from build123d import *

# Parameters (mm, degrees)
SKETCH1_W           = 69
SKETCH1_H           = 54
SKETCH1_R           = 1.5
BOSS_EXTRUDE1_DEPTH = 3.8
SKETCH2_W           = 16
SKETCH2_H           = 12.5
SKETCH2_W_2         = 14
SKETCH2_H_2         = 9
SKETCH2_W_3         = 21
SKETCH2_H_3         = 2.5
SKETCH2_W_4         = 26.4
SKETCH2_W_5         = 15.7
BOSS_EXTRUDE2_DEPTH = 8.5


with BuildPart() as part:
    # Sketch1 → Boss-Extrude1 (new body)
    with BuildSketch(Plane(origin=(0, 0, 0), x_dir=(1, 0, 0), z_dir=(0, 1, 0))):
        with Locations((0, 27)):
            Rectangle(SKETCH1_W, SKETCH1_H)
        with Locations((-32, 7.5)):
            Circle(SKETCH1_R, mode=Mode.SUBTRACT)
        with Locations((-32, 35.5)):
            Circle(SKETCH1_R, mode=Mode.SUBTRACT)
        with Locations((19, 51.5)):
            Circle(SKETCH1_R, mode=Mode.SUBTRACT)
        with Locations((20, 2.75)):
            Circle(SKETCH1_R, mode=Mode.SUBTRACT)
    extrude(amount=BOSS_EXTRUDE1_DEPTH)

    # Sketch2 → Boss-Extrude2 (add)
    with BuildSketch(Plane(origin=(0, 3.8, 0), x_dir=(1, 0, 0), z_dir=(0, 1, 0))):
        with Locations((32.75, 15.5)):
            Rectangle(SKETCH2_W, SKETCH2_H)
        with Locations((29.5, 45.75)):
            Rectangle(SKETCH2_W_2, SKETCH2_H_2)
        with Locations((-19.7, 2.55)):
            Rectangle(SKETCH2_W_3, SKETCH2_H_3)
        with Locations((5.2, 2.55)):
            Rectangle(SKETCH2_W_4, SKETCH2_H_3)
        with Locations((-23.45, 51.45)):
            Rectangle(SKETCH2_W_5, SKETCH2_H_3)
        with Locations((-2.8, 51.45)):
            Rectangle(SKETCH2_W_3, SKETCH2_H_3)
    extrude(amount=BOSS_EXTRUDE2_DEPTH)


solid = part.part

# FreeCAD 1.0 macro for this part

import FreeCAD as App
import Part
import Sketcher

V = App.Vector
Q = App.Units.Quantity

doc = App.newDocument("Part")
params = doc.addObject("Spreadsheet::Sheet", "Params")
for row, (alias, value) in enumerate([
    ("sketch1_diameter", "3 mm"),
    ("sketch1_width", "69 mm"),
    ("sketch1_height", "54 mm"),
    ("pad1_length", "3.8 mm"),
    ("sketch2_width", "16 mm"),
    ("sketch2_width2", "14 mm"),
    ("sketch2_width3", "21 mm"),
    ("sketch2_height", "9 mm"),
    ("sketch2_width4", "26.4 mm"),
    ("pad2_length", "8.5 mm"),
], start=1):
    params.set(f"A{row}", alias)
    params.set(f"B{row}", "=" + value)
    params.setAlias(f"B{row}", alias)

body = doc.addObject("PartDesign::Body", "Body")

sketch1 = body.newObject("Sketcher::SketchObject", "Sketch")
sketch1.AttachmentSupport = (doc.getObject("XZ_Plane"), [""])
sketch1.MapMode = "FlatFace"
sketch1.addGeometry([
    Part.LineSegment(V(-34.5, -54, 0), V(-34.5, 0, 0)),
    Part.LineSegment(V(-34.5, 0, 0), V(34.5, 0, 0)),
    Part.LineSegment(V(34.5, 0, 0), V(34.5, -54, 0)),
    Part.LineSegment(V(34.5, -54, 0), V(-34.5, -54, 0)),
    Part.Circle(V(-32, -7.5, 0), V(0, 0, 1), 1.5),
    Part.Circle(V(20, -2.8, 0), V(0, 0, 1), 1.5),
    Part.Circle(V(-32, -35.5, 0), V(0, 0, 1), 1.5),
    Part.Circle(V(19, -51.5, 0), V(0, 0, 1), 1.5),
], False)
sketch1.addConstraint([
    Sketcher.Constraint("Coincident", 0, 2, 1, 1),
    Sketcher.Constraint("Coincident", 1, 2, 2, 1),
    Sketcher.Constraint("Coincident", 2, 2, 3, 1),
    Sketcher.Constraint("Coincident", 3, 2, 0, 1),
    Sketcher.Constraint("Vertical", 0),
    Sketcher.Constraint("Horizontal", 1),
    Sketcher.Constraint("Vertical", 2),
    Sketcher.Constraint("Horizontal", 3),
    Sketcher.Constraint("Equal", 4, 5),
    Sketcher.Constraint("Equal", 5, 6),
    Sketcher.Constraint("Equal", 6, 7),
    Sketcher.Constraint("Symmetric", 0, 2, 1, 2, -1, 1),
    Sketcher.Constraint("Vertical", 4, 3, 6, 3),
    Sketcher.Constraint("Diameter", 4, Q("3 mm")),
    Sketcher.Constraint("DistanceX", 1, 1, 1, 2, Q("69 mm")),
    Sketcher.Constraint("DistanceY", 0, 1, 0, 2, Q("54 mm")),
    Sketcher.Constraint("DistanceX", 4, 3, -1, 1, Q("32 mm")),
    Sketcher.Constraint("DistanceX", -1, 1, 5, 3, Q("20 mm")),
    Sketcher.Constraint("DistanceX", -1, 1, 7, 3, Q("19 mm")),
    Sketcher.Constraint("DistanceY", 6, 3, 4, 3, Q("28 mm")),
    Sketcher.Constraint("DistanceY", 7, 3, 6, 3, Q("16 mm")),
    Sketcher.Constraint("DistanceY", 4, 3, -1, 1, Q("7.5 mm")),
    Sketcher.Constraint("DistanceY", 5, 3, -1, 1, Q("2.75 mm")),
])
sketch1.setExpression("Constraints[13]", "Params.sketch1_diameter")
sketch1.setExpression("Constraints[14]", "Params.sketch1_width")
sketch1.setExpression("Constraints[15]", "Params.sketch1_height")
pad1 = body.newObject("PartDesign::Pad", "Pad")
pad1.Profile = sketch1
pad1.setExpression("Length", "Params.pad1_length")
pad1.Reversed = True

sketch2 = body.newObject("Sketcher::SketchObject", "Sketch001")
sketch2.AttachmentSupport = (doc.getObject("XZ_Plane"), [""])
sketch2.MapMode = "FlatFace"
sketch2.AttachmentOffset = App.Placement(V(0, 0, -3.8), App.Rotation())
sketch2.addGeometry([
    Part.LineSegment(V(24.8, -21.8, 0), V(24.8, -9.2, 0)),
    Part.LineSegment(V(24.8, -9.2, 0), V(40.8, -9.2, 0)),
    Part.LineSegment(V(40.8, -9.2, 0), V(40.8, -21.8, 0)),
    Part.LineSegment(V(40.8, -21.8, 0), V(24.8, -21.8, 0)),
    Part.LineSegment(V(22.5, -50.2, 0), V(22.5, -41.2, 0)),
    Part.LineSegment(V(22.5, -41.2, 0), V(36.5, -41.2, 0)),
    Part.LineSegment(V(36.5, -41.2, 0), V(36.5, -50.2, 0)),
    Part.LineSegment(V(36.5, -50.2, 0), V(22.5, -50.2, 0)),
    Part.LineSegment(V(-30.2, -3.8, 0), V(-30.2, -1.3, 0)),
    Part.LineSegment(V(-30.2, -1.3, 0), V(-9.2, -1.3, 0)),
    Part.LineSegment(V(-9.2, -1.3, 0), V(-9.2, -3.8, 0)),
    Part.LineSegment(V(-9.2, -3.8, 0), V(-30.2, -3.8, 0)),
    Part.LineSegment(V(-8, -3.8, 0), V(-8, -1.3, 0)),
    Part.LineSegment(V(-8, -1.3, 0), V(18.4, -1.3, 0)),
    Part.LineSegment(V(18.4, -1.3, 0), V(18.4, -3.8, 0)),
    Part.LineSegment(V(18.4, -3.8, 0), V(-8, -3.8, 0)),
    Part.LineSegment(V(-31.3, -52.7, 0), V(-31.3, -50.2, 0)),
    Part.LineSegment(V(-31.3, -50.2, 0), V(-15.6, -50.2, 0)),
    Part.LineSegment(V(-15.6, -50.2, 0), V(-15.6, -52.7, 0)),
    Part.LineSegment(V(-15.6, -52.7, 0), V(-31.3, -52.7, 0)),
    Part.LineSegment(V(-13.3, -52.7, 0), V(-13.3, -50.2, 0)),
    Part.LineSegment(V(-13.3, -50.2, 0), V(7.7, -50.2, 0)),
    Part.LineSegment(V(7.7, -50.2, 0), V(7.7, -52.7, 0)),
    Part.LineSegment(V(7.7, -52.7, 0), V(-13.3, -52.7, 0)),
], False)
sketch2.addConstraint([
    Sketcher.Constraint("Coincident", 0, 2, 1, 1),
    Sketcher.Constraint("Coincident", 1, 2, 2, 1),
    Sketcher.Constraint("Coincident", 2, 2, 3, 1),
    Sketcher.Constraint("Coincident", 3, 2, 0, 1),
    Sketcher.Constraint("Coincident", 4, 2, 5, 1),
    Sketcher.Constraint("Coincident", 5, 2, 6, 1),
    Sketcher.Constraint("Coincident", 6, 2, 7, 1),
    Sketcher.Constraint("Coincident", 7, 2, 4, 1),
    Sketcher.Constraint("Coincident", 8, 2, 9, 1),
    Sketcher.Constraint("Coincident", 9, 2, 10, 1),
    Sketcher.Constraint("Coincident", 10, 2, 11, 1),
    Sketcher.Constraint("Coincident", 11, 2, 8, 1),
    Sketcher.Constraint("Coincident", 12, 2, 13, 1),
    Sketcher.Constraint("Coincident", 13, 2, 14, 1),
    Sketcher.Constraint("Coincident", 14, 2, 15, 1),
    Sketcher.Constraint("Coincident", 15, 2, 12, 1),
    Sketcher.Constraint("Coincident", 16, 2, 17, 1),
    Sketcher.Constraint("Coincident", 17, 2, 18, 1),
    Sketcher.Constraint("Coincident", 18, 2, 19, 1),
    Sketcher.Constraint("Coincident", 19, 2, 16, 1),
    Sketcher.Constraint("Coincident", 20, 2, 21, 1),
    Sketcher.Constraint("Coincident", 21, 2, 22, 1),
    Sketcher.Constraint("Coincident", 22, 2, 23, 1),
    Sketcher.Constraint("Coincident", 23, 2, 20, 1),
    Sketcher.Constraint("Vertical", 0),
    Sketcher.Constraint("Horizontal", 1),
    Sketcher.Constraint("Vertical", 2),
    Sketcher.Constraint("Horizontal", 3),
    Sketcher.Constraint("Vertical", 4),
    Sketcher.Constraint("Horizontal", 5),
    Sketcher.Constraint("Vertical", 6),
    Sketcher.Constraint("Horizontal", 7),
    Sketcher.Constraint("Vertical", 8),
    Sketcher.Constraint("Horizontal", 9),
    Sketcher.Constraint("Vertical", 10),
    Sketcher.Constraint("Horizontal", 11),
    Sketcher.Constraint("Vertical", 12),
    Sketcher.Constraint("Horizontal", 13),
    Sketcher.Constraint("Vertical", 14),
    Sketcher.Constraint("Horizontal", 15),
    Sketcher.Constraint("Vertical", 16),
    Sketcher.Constraint("Horizontal", 17),
    Sketcher.Constraint("Vertical", 18),
    Sketcher.Constraint("Horizontal", 19),
    Sketcher.Constraint("Vertical", 20),
    Sketcher.Constraint("Horizontal", 21),
    Sketcher.Constraint("Vertical", 22),
    Sketcher.Constraint("Horizontal", 23),
    Sketcher.Constraint("Horizontal", 9, 2, 12, 2),
    Sketcher.Constraint("Horizontal", 11, 2, 14, 2),
    Sketcher.Constraint("Horizontal", 17, 2, 20, 2),
    Sketcher.Constraint("Horizontal", 19, 2, 22, 2),
    Sketcher.Constraint("Equal", 11, 21),
    Sketcher.Constraint("Equal", 14, 16),
    Sketcher.Constraint("DistanceX", 1, 1, 1, 2, Q("16 mm")),
    Sketcher.Constraint("DistanceX", 5, 1, 5, 2, Q("14 mm")),
    Sketcher.Constraint("DistanceX", 9, 1, 9, 2, Q("21 mm")),
    Sketcher.Constraint("DistanceY", 4, 1, 4, 2, Q("9 mm")),
    Sketcher.Constraint("DistanceX", 13, 1, 13, 2, Q("26.4 mm")),
    Sketcher.Constraint("DistanceX", 17, 1, 17, 2, Q("15.7 mm")),
    Sketcher.Constraint("DistanceY", 0, 1, 0, 2, Q("12.5 mm")),
    Sketcher.Constraint("DistanceY", 8, 1, 8, 2, Q("2.5 mm")),
    Sketcher.Constraint("DistanceX", 12, 2, -1, 1, Q("8 mm")),
    Sketcher.Constraint("DistanceY", 4, 2, 0, 2, Q("32 mm")),
    Sketcher.Constraint("DistanceX", 16, 2, 20, 2, Q("18 mm")),
    Sketcher.Constraint("DistanceX", -1, 1, 4, 2, Q("22.5 mm")),
    Sketcher.Constraint("DistanceX", 8, 2, -1, 1, Q("30.2 mm")),
    Sketcher.Constraint("DistanceY", 8, 2, -1, 1, Q("1.3 mm")),
    Sketcher.Constraint("DistanceX", 16, 2, -1, 1, Q("31.3 mm")),
    Sketcher.Constraint("DistanceY", 16, 2, -1, 1, Q("50.2 mm")),
    Sketcher.Constraint("DistanceX", -1, 1, 0, 2, Q("24.75 mm")),
    Sketcher.Constraint("DistanceY", 0, 2, -1, 1, Q("9.25 mm")),
])
sketch2.setExpression("Constraints[54]", "Params.sketch2_width")
sketch2.setExpression("Constraints[55]", "Params.sketch2_width2")
sketch2.setExpression("Constraints[56]", "Params.sketch2_width3")
sketch2.setExpression("Constraints[57]", "Params.sketch2_height")
sketch2.setExpression("Constraints[58]", "Params.sketch2_width4")
pad2 = body.newObject("PartDesign::Pad", "Pad001")
pad2.Profile = sketch2
pad2.setExpression("Length", "Params.pad2_length")
pad2.Reversed = True

doc.recompute()
